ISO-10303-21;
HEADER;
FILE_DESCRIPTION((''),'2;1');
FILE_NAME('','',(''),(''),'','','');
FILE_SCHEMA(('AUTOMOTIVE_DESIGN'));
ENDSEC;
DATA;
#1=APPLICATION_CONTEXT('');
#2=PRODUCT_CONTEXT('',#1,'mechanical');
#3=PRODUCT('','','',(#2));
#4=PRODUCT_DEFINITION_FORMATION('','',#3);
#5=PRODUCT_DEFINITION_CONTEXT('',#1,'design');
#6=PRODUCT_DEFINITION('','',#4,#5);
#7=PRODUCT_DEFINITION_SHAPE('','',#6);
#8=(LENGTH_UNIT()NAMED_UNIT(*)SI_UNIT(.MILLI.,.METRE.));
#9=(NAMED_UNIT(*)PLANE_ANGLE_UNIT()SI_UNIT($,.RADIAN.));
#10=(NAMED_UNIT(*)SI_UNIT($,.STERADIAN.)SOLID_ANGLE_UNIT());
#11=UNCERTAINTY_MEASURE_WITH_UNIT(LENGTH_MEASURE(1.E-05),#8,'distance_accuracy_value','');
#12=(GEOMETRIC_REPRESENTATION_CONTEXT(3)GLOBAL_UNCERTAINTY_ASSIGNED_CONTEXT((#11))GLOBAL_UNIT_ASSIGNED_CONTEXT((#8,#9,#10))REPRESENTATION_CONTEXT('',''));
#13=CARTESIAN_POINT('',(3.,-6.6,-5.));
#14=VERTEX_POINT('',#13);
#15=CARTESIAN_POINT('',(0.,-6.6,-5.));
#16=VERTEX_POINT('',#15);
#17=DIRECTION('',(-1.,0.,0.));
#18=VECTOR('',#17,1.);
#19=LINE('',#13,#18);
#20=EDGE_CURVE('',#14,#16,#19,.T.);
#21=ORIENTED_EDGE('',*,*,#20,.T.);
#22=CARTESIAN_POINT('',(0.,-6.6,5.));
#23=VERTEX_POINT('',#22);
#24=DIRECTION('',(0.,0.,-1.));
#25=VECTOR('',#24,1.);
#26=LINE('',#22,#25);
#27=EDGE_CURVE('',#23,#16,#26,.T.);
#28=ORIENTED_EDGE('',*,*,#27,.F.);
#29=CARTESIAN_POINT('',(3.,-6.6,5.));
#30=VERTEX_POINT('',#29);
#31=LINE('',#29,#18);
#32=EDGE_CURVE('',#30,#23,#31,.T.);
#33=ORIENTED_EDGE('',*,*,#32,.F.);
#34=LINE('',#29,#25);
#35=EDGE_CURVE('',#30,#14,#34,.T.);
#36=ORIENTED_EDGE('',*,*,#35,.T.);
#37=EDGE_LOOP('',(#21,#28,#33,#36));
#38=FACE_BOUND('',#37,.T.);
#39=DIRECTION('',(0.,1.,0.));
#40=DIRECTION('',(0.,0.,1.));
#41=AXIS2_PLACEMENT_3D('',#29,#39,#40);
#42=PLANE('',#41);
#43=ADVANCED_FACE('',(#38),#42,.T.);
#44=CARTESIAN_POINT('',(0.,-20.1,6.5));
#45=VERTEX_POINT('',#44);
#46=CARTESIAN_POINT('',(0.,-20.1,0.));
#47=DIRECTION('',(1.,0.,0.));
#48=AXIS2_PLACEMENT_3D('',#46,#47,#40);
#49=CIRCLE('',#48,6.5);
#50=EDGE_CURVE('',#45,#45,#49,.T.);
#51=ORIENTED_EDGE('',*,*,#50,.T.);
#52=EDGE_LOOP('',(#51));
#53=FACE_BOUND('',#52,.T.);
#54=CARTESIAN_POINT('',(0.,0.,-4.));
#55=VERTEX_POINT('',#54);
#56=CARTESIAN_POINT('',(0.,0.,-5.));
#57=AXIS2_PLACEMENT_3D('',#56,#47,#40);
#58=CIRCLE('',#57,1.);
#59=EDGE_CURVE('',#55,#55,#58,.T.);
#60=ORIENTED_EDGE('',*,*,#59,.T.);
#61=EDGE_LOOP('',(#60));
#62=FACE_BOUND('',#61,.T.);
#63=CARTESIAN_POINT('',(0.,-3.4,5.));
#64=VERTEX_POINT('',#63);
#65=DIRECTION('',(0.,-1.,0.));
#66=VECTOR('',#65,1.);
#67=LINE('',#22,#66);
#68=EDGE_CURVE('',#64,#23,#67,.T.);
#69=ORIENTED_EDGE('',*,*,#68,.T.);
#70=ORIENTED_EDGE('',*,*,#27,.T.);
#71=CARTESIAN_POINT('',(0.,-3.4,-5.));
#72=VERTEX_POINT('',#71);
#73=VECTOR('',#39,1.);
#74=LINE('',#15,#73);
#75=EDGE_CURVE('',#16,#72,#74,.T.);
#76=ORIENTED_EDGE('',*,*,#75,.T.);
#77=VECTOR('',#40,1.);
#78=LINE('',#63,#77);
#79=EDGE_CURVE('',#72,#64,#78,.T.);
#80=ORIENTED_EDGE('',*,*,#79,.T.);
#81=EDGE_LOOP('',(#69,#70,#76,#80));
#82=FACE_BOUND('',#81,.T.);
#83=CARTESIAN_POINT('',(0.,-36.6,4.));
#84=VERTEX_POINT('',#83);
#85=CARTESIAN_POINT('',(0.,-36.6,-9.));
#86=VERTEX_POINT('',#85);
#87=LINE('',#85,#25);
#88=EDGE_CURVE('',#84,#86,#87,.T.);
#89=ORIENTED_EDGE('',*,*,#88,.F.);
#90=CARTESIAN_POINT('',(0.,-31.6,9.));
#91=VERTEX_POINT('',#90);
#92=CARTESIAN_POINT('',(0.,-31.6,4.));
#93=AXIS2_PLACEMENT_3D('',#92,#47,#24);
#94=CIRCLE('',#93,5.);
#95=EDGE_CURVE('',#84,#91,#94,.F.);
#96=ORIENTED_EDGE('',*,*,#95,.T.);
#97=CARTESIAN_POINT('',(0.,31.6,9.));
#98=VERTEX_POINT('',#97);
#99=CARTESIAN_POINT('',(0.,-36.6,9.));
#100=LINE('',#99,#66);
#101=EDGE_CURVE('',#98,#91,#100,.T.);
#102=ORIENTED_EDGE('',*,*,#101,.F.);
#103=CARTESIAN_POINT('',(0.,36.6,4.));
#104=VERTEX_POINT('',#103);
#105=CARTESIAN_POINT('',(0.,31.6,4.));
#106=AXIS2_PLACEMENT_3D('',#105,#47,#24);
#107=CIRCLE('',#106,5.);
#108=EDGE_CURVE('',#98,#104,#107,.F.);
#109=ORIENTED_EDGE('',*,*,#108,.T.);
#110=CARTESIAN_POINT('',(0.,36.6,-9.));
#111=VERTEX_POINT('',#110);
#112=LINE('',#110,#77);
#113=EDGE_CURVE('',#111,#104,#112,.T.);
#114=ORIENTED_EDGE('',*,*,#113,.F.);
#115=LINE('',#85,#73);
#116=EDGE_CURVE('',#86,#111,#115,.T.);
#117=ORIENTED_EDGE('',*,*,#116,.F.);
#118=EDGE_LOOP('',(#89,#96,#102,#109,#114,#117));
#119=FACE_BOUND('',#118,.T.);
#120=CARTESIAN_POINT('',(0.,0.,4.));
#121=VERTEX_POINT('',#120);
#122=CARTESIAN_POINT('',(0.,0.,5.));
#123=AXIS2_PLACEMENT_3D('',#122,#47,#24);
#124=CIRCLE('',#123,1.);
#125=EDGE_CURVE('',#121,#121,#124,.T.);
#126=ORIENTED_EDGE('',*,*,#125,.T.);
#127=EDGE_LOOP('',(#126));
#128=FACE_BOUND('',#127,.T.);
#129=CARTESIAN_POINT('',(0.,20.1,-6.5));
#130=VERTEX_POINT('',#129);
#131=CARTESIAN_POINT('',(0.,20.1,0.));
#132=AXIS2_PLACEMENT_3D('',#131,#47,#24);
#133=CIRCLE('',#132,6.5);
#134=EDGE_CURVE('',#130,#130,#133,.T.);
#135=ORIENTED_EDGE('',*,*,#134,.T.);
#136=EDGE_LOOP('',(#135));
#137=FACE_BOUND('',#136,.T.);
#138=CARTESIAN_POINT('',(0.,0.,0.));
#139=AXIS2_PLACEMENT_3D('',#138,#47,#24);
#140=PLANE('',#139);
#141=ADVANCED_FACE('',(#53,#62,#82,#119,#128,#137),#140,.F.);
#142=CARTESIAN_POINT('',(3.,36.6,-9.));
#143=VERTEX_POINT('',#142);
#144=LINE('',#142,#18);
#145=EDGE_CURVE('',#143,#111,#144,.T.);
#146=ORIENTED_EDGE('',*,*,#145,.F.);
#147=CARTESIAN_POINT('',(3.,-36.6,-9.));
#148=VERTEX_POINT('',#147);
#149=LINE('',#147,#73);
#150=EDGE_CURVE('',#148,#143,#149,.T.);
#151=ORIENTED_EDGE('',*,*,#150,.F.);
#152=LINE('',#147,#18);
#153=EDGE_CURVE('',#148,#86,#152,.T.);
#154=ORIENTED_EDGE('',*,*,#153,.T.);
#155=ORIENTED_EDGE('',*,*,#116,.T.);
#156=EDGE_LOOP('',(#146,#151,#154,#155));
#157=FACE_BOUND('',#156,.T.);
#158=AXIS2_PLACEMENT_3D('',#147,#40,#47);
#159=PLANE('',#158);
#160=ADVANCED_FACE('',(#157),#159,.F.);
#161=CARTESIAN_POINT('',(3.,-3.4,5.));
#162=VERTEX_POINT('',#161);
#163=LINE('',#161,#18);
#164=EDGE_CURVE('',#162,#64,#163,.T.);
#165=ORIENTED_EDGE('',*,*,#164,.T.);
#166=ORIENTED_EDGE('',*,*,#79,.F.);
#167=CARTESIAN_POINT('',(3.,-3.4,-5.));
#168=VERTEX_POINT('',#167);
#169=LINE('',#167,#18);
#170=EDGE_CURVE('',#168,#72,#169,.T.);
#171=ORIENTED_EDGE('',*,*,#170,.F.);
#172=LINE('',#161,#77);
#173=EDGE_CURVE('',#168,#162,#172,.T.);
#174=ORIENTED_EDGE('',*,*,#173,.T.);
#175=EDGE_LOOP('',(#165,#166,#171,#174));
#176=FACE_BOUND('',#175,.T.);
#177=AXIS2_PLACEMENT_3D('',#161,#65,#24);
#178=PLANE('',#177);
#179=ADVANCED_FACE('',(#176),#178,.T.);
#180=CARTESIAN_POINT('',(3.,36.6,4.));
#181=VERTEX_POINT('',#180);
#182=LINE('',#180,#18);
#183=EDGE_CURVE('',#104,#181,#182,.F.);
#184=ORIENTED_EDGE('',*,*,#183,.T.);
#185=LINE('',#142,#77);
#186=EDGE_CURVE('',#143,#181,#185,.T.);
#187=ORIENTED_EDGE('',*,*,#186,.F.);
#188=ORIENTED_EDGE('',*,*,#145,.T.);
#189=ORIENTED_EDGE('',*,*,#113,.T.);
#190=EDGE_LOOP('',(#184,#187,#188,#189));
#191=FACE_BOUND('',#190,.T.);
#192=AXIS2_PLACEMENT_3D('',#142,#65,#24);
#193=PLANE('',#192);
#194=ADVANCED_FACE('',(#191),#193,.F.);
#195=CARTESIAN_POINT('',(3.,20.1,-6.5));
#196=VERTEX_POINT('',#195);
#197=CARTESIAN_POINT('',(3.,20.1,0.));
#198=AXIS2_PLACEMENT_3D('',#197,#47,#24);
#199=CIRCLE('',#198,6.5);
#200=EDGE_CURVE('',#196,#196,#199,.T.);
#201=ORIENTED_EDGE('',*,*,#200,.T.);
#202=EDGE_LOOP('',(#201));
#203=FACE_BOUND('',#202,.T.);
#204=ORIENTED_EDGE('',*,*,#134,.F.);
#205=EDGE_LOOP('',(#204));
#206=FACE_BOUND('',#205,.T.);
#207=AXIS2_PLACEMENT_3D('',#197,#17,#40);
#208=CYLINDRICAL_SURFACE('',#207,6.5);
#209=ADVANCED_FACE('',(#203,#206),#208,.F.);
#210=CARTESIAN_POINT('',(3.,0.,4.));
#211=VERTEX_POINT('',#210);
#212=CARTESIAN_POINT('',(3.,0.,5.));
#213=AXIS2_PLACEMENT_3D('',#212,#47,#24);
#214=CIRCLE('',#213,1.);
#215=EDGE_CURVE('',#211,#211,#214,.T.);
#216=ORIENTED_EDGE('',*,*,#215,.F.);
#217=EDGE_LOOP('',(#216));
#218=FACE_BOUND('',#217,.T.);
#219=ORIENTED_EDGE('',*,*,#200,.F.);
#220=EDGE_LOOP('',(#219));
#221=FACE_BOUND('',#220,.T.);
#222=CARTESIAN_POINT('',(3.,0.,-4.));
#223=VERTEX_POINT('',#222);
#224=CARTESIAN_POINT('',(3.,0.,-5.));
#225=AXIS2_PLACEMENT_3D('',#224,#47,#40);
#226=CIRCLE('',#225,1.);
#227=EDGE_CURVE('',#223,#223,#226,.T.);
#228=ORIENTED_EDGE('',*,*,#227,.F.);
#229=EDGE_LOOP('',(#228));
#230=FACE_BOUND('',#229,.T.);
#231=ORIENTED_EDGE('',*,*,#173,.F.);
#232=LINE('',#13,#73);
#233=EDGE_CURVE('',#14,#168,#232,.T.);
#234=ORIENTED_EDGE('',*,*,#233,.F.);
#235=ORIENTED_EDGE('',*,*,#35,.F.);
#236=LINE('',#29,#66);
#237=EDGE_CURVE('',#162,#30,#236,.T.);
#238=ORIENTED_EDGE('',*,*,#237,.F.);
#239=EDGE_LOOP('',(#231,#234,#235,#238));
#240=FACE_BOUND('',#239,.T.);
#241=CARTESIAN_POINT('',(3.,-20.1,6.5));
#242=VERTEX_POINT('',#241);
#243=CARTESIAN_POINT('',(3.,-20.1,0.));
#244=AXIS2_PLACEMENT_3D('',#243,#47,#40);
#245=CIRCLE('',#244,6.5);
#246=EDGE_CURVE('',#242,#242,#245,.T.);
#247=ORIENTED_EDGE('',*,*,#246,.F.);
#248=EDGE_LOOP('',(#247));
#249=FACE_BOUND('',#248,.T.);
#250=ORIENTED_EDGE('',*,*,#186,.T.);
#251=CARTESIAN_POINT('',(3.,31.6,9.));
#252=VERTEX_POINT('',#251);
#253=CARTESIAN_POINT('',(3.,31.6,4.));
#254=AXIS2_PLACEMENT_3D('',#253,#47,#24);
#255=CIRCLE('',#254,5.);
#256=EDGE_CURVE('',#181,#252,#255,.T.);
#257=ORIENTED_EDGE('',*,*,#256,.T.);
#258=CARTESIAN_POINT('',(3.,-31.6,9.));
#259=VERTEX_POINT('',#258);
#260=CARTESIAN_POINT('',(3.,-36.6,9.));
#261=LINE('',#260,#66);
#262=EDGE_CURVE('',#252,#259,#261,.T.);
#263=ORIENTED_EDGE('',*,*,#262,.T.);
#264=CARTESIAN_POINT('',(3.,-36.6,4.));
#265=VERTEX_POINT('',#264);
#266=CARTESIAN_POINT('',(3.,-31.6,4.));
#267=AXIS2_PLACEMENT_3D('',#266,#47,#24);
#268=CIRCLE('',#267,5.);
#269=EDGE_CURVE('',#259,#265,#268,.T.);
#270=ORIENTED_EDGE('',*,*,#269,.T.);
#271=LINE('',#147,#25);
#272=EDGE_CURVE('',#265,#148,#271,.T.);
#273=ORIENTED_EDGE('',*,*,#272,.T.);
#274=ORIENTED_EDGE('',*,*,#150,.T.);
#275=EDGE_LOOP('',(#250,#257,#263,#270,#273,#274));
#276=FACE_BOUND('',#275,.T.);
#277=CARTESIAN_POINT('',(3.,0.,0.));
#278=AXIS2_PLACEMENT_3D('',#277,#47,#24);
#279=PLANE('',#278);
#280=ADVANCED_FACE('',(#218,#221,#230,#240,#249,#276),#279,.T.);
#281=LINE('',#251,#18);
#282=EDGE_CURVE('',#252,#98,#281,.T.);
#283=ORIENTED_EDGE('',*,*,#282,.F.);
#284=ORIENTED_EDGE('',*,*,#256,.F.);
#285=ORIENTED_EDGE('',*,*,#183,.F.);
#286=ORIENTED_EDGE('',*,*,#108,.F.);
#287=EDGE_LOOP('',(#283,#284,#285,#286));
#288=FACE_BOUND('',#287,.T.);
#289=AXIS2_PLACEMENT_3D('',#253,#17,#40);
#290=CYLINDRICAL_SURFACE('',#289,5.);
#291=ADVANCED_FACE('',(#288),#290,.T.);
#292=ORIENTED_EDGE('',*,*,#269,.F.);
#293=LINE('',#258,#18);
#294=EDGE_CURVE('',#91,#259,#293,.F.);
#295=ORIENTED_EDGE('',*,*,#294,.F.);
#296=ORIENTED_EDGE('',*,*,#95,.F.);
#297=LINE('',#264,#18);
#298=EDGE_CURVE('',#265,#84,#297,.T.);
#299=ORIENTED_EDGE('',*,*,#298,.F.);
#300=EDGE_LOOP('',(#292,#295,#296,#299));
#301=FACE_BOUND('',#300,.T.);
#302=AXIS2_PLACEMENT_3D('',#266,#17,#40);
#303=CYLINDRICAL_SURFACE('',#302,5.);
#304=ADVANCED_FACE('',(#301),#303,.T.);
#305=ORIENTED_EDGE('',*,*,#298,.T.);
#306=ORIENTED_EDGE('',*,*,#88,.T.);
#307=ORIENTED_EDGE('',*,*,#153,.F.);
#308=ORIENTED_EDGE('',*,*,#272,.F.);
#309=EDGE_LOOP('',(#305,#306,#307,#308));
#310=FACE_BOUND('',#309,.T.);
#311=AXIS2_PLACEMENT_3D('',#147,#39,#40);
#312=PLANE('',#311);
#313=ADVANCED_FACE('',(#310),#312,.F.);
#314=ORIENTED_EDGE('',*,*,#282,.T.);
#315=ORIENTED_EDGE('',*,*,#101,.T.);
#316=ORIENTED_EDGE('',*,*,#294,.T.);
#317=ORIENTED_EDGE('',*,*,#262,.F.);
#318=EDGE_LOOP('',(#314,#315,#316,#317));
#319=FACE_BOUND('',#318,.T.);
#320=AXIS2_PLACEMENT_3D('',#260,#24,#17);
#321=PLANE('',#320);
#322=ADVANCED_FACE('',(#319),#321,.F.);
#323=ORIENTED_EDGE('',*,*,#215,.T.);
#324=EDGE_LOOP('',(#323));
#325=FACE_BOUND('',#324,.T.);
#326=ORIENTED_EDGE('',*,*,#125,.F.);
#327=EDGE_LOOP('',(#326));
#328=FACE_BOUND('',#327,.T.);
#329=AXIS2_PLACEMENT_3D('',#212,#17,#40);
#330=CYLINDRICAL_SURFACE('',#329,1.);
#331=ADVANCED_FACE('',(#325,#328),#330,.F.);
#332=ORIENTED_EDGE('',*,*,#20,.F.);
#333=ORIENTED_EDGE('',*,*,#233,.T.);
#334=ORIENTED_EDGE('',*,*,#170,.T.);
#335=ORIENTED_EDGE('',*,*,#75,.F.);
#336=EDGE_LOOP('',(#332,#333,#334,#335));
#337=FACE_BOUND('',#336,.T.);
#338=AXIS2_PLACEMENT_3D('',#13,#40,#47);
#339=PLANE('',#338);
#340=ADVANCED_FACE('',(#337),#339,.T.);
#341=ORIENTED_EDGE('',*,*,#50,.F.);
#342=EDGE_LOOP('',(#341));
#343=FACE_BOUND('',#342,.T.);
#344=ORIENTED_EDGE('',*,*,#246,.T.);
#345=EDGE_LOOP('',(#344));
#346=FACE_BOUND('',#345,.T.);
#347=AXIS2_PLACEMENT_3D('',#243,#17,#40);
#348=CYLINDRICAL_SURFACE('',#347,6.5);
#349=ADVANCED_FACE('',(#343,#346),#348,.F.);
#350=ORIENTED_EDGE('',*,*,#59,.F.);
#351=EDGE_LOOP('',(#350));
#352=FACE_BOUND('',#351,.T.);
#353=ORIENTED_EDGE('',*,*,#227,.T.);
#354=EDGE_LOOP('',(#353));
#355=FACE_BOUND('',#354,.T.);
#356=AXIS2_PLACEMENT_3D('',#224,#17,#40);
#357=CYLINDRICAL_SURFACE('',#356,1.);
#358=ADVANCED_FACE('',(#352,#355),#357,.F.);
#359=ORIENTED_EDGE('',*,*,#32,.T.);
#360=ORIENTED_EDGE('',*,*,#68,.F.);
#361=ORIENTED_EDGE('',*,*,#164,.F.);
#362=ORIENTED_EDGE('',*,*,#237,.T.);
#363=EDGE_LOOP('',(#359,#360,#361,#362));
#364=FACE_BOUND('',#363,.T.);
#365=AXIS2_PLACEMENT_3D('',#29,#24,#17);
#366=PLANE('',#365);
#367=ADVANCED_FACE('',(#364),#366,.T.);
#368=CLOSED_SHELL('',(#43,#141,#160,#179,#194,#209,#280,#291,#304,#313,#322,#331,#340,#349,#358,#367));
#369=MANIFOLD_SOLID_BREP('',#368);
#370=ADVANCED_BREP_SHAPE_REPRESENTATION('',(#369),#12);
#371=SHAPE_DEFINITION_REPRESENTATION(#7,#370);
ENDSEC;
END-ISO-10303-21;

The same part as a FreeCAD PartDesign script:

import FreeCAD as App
import Part
import Sketcher

V = App.Vector
Q = App.Units.Quantity


def edges_at(feature, points):
    """Names of the edges that pass closest to the given points."""
    edges = feature.Shape.Edges
    near = lambda p: min(range(len(edges)), key=lambda i: edges[i].distToShape(Part.Vertex(*p))[0])
    return sorted({f"Edge{near(p) + 1}" for p in points})

doc = App.newDocument("Part")
body = doc.addObject("PartDesign::Body", "Body")

# Sketch on YZ plane
sketch1 = body.newObject("Sketcher::SketchObject", "Sketch")
sketch1.AttachmentSupport = (doc.getObject("YZ_Plane"), [""])
sketch1.MapMode = "FlatFace"
sketch1.addGeometry([
    Part.LineSegment(V(36.6, 9, 0), V(-36.6, 9, 0)),  # 0
    Part.LineSegment(V(-36.6, 9, 0), V(-36.6, -9, 0)),  # 1
    Part.LineSegment(V(-36.6, -9, 0), V(36.6, -9, 0)),  # 2
    Part.LineSegment(V(36.6, -9, 0), V(36.6, 9, 0)),  # 3
    Part.Circle(V(-20.1, 0, 0), V(0, 0, 1), 6.5),  # 4
    Part.LineSegment(V(-6.6, -5, 0), V(-6.6, 5, 0)),  # 5
    Part.LineSegment(V(-6.6, 5, 0), V(-3.4, 5, 0)),  # 6
    Part.LineSegment(V(-3.4, 5, 0), V(-3.4, -5, 0)),  # 7
    Part.LineSegment(V(-3.4, -5, 0), V(-6.6, -5, 0)),  # 8
    Part.Circle(V(0, 5, 0), V(0, 0, 1), 1),  # 9
    Part.Circle(V(0, -5, 0), V(0, 0, 1), 1),  # 10
    Part.Circle(V(20.1, 0, 0), V(0, 0, 1), 6.5),  # 11
], False)
sketch1.addConstraint([
    Sketcher.Constraint("Coincident", 0, 2, 1, 1),
    Sketcher.Constraint("Coincident", 1, 2, 2, 1),
    Sketcher.Constraint("Coincident", 2, 2, 3, 1),
    Sketcher.Constraint("Coincident", 3, 2, 0, 1),
    Sketcher.Constraint("Coincident", 5, 2, 6, 1),
    Sketcher.Constraint("Coincident", 6, 2, 7, 1),
    Sketcher.Constraint("Coincident", 7, 2, 8, 1),
    Sketcher.Constraint("Coincident", 8, 2, 5, 1),
    Sketcher.Constraint("Horizontal", 0),
    Sketcher.Constraint("Vertical", 1),
    Sketcher.Constraint("Horizontal", 2),
    Sketcher.Constraint("Vertical", 3),
    Sketcher.Constraint("Vertical", 5),
    Sketcher.Constraint("Horizontal", 6),
    Sketcher.Constraint("Vertical", 7),
    Sketcher.Constraint("Horizontal", 8),
    Sketcher.Constraint("Equal", 9, 10),
    Sketcher.Constraint("Equal", 4, 11),
    Sketcher.Constraint("Symmetric", 9, 3, 10, 3, -1, 1),
    Sketcher.Constraint("Symmetric", 4, 3, 11, 3, -1, 1),
    Sketcher.Constraint("Symmetric", 0, 2, 2, 2, -1, 1),
    Sketcher.Constraint("PointOnObject", 4, 3, -1),
    Sketcher.Constraint("PointOnObject", 9, 3, -2),
    Sketcher.Constraint("Horizontal", 9, 3, 5, 2),
    Sketcher.Constraint("Horizontal", 10, 3, 7, 2),
    Sketcher.Constraint("Diameter", 4, Q("13 mm")),
    Sketcher.Constraint("Diameter", 9, Q("2 mm")),
    Sketcher.Constraint("DistanceY", 1, 2, 1, 1, Q("18 mm")),
    Sketcher.Constraint("DistanceY", 5, 1, 5, 2, Q("10 mm")),
    Sketcher.Constraint("DistanceX", 0, 2, 0, 1, Q("73.2 mm")),
    Sketcher.Constraint("DistanceX", 6, 1, 6, 2, Q("3.2 mm")),
    Sketcher.Constraint("DistanceX", 0, 2, 5, 2, Q("30 mm")),
    Sketcher.Constraint("DistanceX", 4, 3, -1, 1, Q("20.1 mm")),
])
pad1 = body.newObject("PartDesign::Pad", "Pad")
pad1.Profile = sketch1
pad1.Length = 3
doc.recompute()

fillet = body.newObject("PartDesign::Fillet", "Fillet")
fillet.Base = (pad1, edges_at(pad1, [(1.5, 36.6, 9), (1.5, -36.6, 9)]))
fillet.Radius = 5

doc.recompute()
